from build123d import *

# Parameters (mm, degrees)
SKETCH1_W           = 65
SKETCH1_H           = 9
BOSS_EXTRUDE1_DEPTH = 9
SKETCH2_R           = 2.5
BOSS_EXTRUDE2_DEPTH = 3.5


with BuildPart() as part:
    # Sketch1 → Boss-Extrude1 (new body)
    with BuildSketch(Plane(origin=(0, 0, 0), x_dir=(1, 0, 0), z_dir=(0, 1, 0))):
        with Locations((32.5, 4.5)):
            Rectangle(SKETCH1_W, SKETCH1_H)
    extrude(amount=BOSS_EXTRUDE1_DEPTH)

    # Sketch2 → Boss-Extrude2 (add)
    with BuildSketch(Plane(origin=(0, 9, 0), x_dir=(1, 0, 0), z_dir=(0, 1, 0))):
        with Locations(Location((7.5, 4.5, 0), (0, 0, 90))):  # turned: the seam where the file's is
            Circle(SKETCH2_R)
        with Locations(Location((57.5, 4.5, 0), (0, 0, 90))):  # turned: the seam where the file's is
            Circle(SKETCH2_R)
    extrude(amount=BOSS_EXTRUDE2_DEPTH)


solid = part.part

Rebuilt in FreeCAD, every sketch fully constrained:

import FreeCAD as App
import Part
import Sketcher
from FreeCAD import Vector


def add_polygon(sketch, points):
    """Adds a closed chain of lines whose ends are joined by coincident constraints."""
    first, n = sketch.GeometryCount, len(points)
    for a, b in zip(points, points[1:] + points[:1]):
        sketch.addGeometry(Part.LineSegment(App.Vector(*a, 0), App.Vector(*b, 0)), False)
    for i in range(n):
        sketch.addConstraint(Sketcher.Constraint("Coincident", first + i, 2, first + (i + 1) % n, 1))

doc = App.newDocument("Part")
body = doc.addObject("PartDesign::Body", "Body")

sketch1 = body.newObject("Sketcher::SketchObject", "Sketch")
sketch1.AttachmentSupport = (doc.getObject("XZ_Plane"), [""])
sketch1.MapMode = "FlatFace"
add_polygon(sketch1, [(0, -9), (0, 0), (65, 0), (65, -9)])
sketch1.addConstraint([
    Sketcher.Constraint("Vertical", 0),
    Sketcher.Constraint("Horizontal", 1),
    Sketcher.Constraint("Vertical", 2),
    Sketcher.Constraint("Horizontal", 3),
    Sketcher.Constraint("Coincident", 0, 2, -1, 1),
    Sketcher.Constraint("DistanceX", 1, 1, 1, 2, 65.0),
    Sketcher.Constraint("DistanceY", 0, 1, 0, 2, 9.0),
])
pad1 = body.newObject("PartDesign::Pad", "Pad")
pad1.Profile = sketch1
pad1.Length = 9
pad1.Reversed = True

sketch2 = body.newObject("Sketcher::SketchObject", "Sketch001")
sketch2.AttachmentSupport = (doc.getObject("XZ_Plane"), [""])
sketch2.MapMode = "FlatFace"
sketch2.AttachmentOffset = App.Placement(Vector(0, 0, -9), App.Rotation())
sketch2.addGeometry([
    Part.Circle(Vector(7.5, -4.5, 0), Vector(0, 0, 1), 2.5),
    Part.Circle(Vector(57.5, -4.5, 0), Vector(0, 0, 1), 2.5),
], False)
sketch2.addConstraint([
    Sketcher.Constraint("Equal", 0, 1),
    Sketcher.Constraint("Horizontal", 0, 3, 1, 3),
    Sketcher.Constraint("Diameter", 0, 5.0),
    Sketcher.Constraint("DistanceX", 0, 3, 1, 3, 50.0),
    Sketcher.Constraint("DistanceX", -1, 1, 0, 3, 7.5),
    Sketcher.Constraint("DistanceY", 0, 3, -1, 1, 4.5),
])
pad2 = body.newObject("PartDesign::Pad", "Pad001")
pad2.Profile = sketch2
pad2.Length = 3.5
pad2.Reversed = True

doc.recompute()
